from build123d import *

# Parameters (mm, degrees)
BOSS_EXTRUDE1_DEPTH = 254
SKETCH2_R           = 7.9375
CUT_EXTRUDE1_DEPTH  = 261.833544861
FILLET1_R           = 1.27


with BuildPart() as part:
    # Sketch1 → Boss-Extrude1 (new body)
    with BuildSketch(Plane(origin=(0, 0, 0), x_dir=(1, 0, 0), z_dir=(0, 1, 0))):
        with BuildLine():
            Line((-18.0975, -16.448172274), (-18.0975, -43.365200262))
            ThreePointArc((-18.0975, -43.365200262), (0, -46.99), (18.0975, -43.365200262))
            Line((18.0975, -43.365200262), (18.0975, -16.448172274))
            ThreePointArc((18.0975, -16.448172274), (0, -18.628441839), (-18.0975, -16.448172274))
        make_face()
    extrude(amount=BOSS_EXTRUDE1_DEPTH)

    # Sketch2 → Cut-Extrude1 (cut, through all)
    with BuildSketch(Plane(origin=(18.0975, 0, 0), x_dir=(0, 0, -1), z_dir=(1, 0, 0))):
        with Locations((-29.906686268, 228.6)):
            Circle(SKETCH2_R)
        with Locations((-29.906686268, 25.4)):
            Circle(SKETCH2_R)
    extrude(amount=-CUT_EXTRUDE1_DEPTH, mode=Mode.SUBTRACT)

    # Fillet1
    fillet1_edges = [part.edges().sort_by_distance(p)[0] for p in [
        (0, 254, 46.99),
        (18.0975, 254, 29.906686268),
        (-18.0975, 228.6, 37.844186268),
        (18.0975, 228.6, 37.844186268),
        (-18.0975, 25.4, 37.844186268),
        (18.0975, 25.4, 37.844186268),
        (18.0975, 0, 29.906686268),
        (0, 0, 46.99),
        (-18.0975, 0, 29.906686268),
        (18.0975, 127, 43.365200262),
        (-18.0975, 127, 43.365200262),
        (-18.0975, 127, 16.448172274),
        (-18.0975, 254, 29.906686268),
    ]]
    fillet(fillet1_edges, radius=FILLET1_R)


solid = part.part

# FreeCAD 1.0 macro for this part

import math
import FreeCAD as App
import Part
import Sketcher
Q = App.Units.Quantity


def edges_at(feature, points):
    """Names of the edges that pass closest to the given points."""
    edges = feature.Shape.Edges
    near = lambda p: min(range(len(edges)), key=lambda i: edges[i].distToShape(Part.Vertex(*p))[0])
    return sorted({f"Edge{near(p) + 1}" for p in points})

doc = App.newDocument("Part")
body = doc.addObject("PartDesign::Body", "Body")

sketch1 = body.newObject("Sketcher::SketchObject", "Sketch")
sketch1.AttachmentSupport = (doc.getObject("XZ_Plane"), [""])
sketch1.MapMode = "FlatFace"
sketch1.addGeometry([
    Part.LineSegment(App.Vector(-18, 16, 0), App.Vector(-18, 43, 0)),
    Part.ArcOfCircle(Part.Circle(App.Vector(0, 0, 0), App.Vector(0, 0, 1), 47), math.radians(67), math.radians(113)),
    Part.LineSegment(App.Vector(18, 43, 0), App.Vector(18, 16, 0)),
    Part.ArcOfCircle(Part.Circle(App.Vector(0, -58, 0), App.Vector(0, 0, 1), 76), math.radians(76), math.radians(104)),
], False)
sketch1.addConstraint([
    Sketcher.Constraint("Coincident", 0, 2, 1, 2),
    Sketcher.Constraint("Coincident", 1, 1, 2, 1),
    Sketcher.Constraint("Coincident", 2, 2, 3, 1),
    Sketcher.Constraint("Coincident", 3, 2, 0, 1),
    Sketcher.Constraint("Vertical", 0),
    Sketcher.Constraint("Vertical", 2),
    Sketcher.Constraint("Coincident", 1, 3, -1, 1),
    Sketcher.Constraint("Symmetric", 2, 2, 3, 2, -2),
    Sketcher.Constraint("Radius", 3, Q("3 in")),
    Sketcher.Constraint("Radius", 1, Q("1.85 in")),
    Sketcher.Constraint("DistanceX", 0, 2, 1, 1, Q("1.425 in")),
    Sketcher.Constraint("DistanceY", 0, 1, 0, 2, Q("26.917028 mm")),
])
pad1 = body.newObject("PartDesign::Pad", "Pad")
pad1.Profile = sketch1
pad1.Length = Q("10 in")
pad1.Reversed = True

sketch2 = body.newObject("Sketcher::SketchObject", "Sketch001")
sketch2.AttachmentSupport = (doc.getObject("YZ_Plane"), [""])
sketch2.MapMode = "FlatFace"
sketch2.AttachmentOffset = App.Placement(App.Vector(0, 0, 0.7125 * 25.4), App.Rotation())
sketch2.addGeometry([
    Part.Circle(App.Vector(229, 30, 0), App.Vector(0, 0, 1), 8),
    Part.Circle(App.Vector(25, 30, 0), App.Vector(0, 0, 1), 8),
], False)
sketch2.addConstraint([
    Sketcher.Constraint("Equal", 0, 1),
    Sketcher.Constraint("Horizontal", 0, 3, 1, 3),
    Sketcher.Constraint("Diameter", 0, Q("0.625 in")),
    Sketcher.Constraint("DistanceX", -1, 1, 0, 3, Q("9 in")),
    Sketcher.Constraint("DistanceX", -1, 1, 1, 3, Q("1 in")),
    Sketcher.Constraint("DistanceY", -1, 1, 0, 3, Q("29.906686 mm")),
])
pocket1 = body.newObject("PartDesign::Pocket", "Pocket")
pocket1.Profile = sketch2
pocket1.Type = "ThroughAll"
doc.recompute()

fillet = body.newObject("PartDesign::Fillet", "Fillet")
fillet.Base = (pocket1, edges_at(pocket1, [
    (0, 254, 46.99),
    (18.098, 254, 29.907),
    (-18.098, 228.6, 37.844),
    (18.098, 228.6, 37.844),
    (-18.098, 25.4, 37.844),
    (18.098, 25.4, 37.844),
    (18.098, 0, 29.907),
    (0, 0, 46.99),
    (-18.098, 0, 29.907),
    (18.098, 127, 43.365),
    (-18.098, 127, 43.365),
    (-18.098, 127, 16.448),
    (-18.098, 254, 29.907),
]))
fillet.Radius = Q("0.05 in")

doc.recompute()
